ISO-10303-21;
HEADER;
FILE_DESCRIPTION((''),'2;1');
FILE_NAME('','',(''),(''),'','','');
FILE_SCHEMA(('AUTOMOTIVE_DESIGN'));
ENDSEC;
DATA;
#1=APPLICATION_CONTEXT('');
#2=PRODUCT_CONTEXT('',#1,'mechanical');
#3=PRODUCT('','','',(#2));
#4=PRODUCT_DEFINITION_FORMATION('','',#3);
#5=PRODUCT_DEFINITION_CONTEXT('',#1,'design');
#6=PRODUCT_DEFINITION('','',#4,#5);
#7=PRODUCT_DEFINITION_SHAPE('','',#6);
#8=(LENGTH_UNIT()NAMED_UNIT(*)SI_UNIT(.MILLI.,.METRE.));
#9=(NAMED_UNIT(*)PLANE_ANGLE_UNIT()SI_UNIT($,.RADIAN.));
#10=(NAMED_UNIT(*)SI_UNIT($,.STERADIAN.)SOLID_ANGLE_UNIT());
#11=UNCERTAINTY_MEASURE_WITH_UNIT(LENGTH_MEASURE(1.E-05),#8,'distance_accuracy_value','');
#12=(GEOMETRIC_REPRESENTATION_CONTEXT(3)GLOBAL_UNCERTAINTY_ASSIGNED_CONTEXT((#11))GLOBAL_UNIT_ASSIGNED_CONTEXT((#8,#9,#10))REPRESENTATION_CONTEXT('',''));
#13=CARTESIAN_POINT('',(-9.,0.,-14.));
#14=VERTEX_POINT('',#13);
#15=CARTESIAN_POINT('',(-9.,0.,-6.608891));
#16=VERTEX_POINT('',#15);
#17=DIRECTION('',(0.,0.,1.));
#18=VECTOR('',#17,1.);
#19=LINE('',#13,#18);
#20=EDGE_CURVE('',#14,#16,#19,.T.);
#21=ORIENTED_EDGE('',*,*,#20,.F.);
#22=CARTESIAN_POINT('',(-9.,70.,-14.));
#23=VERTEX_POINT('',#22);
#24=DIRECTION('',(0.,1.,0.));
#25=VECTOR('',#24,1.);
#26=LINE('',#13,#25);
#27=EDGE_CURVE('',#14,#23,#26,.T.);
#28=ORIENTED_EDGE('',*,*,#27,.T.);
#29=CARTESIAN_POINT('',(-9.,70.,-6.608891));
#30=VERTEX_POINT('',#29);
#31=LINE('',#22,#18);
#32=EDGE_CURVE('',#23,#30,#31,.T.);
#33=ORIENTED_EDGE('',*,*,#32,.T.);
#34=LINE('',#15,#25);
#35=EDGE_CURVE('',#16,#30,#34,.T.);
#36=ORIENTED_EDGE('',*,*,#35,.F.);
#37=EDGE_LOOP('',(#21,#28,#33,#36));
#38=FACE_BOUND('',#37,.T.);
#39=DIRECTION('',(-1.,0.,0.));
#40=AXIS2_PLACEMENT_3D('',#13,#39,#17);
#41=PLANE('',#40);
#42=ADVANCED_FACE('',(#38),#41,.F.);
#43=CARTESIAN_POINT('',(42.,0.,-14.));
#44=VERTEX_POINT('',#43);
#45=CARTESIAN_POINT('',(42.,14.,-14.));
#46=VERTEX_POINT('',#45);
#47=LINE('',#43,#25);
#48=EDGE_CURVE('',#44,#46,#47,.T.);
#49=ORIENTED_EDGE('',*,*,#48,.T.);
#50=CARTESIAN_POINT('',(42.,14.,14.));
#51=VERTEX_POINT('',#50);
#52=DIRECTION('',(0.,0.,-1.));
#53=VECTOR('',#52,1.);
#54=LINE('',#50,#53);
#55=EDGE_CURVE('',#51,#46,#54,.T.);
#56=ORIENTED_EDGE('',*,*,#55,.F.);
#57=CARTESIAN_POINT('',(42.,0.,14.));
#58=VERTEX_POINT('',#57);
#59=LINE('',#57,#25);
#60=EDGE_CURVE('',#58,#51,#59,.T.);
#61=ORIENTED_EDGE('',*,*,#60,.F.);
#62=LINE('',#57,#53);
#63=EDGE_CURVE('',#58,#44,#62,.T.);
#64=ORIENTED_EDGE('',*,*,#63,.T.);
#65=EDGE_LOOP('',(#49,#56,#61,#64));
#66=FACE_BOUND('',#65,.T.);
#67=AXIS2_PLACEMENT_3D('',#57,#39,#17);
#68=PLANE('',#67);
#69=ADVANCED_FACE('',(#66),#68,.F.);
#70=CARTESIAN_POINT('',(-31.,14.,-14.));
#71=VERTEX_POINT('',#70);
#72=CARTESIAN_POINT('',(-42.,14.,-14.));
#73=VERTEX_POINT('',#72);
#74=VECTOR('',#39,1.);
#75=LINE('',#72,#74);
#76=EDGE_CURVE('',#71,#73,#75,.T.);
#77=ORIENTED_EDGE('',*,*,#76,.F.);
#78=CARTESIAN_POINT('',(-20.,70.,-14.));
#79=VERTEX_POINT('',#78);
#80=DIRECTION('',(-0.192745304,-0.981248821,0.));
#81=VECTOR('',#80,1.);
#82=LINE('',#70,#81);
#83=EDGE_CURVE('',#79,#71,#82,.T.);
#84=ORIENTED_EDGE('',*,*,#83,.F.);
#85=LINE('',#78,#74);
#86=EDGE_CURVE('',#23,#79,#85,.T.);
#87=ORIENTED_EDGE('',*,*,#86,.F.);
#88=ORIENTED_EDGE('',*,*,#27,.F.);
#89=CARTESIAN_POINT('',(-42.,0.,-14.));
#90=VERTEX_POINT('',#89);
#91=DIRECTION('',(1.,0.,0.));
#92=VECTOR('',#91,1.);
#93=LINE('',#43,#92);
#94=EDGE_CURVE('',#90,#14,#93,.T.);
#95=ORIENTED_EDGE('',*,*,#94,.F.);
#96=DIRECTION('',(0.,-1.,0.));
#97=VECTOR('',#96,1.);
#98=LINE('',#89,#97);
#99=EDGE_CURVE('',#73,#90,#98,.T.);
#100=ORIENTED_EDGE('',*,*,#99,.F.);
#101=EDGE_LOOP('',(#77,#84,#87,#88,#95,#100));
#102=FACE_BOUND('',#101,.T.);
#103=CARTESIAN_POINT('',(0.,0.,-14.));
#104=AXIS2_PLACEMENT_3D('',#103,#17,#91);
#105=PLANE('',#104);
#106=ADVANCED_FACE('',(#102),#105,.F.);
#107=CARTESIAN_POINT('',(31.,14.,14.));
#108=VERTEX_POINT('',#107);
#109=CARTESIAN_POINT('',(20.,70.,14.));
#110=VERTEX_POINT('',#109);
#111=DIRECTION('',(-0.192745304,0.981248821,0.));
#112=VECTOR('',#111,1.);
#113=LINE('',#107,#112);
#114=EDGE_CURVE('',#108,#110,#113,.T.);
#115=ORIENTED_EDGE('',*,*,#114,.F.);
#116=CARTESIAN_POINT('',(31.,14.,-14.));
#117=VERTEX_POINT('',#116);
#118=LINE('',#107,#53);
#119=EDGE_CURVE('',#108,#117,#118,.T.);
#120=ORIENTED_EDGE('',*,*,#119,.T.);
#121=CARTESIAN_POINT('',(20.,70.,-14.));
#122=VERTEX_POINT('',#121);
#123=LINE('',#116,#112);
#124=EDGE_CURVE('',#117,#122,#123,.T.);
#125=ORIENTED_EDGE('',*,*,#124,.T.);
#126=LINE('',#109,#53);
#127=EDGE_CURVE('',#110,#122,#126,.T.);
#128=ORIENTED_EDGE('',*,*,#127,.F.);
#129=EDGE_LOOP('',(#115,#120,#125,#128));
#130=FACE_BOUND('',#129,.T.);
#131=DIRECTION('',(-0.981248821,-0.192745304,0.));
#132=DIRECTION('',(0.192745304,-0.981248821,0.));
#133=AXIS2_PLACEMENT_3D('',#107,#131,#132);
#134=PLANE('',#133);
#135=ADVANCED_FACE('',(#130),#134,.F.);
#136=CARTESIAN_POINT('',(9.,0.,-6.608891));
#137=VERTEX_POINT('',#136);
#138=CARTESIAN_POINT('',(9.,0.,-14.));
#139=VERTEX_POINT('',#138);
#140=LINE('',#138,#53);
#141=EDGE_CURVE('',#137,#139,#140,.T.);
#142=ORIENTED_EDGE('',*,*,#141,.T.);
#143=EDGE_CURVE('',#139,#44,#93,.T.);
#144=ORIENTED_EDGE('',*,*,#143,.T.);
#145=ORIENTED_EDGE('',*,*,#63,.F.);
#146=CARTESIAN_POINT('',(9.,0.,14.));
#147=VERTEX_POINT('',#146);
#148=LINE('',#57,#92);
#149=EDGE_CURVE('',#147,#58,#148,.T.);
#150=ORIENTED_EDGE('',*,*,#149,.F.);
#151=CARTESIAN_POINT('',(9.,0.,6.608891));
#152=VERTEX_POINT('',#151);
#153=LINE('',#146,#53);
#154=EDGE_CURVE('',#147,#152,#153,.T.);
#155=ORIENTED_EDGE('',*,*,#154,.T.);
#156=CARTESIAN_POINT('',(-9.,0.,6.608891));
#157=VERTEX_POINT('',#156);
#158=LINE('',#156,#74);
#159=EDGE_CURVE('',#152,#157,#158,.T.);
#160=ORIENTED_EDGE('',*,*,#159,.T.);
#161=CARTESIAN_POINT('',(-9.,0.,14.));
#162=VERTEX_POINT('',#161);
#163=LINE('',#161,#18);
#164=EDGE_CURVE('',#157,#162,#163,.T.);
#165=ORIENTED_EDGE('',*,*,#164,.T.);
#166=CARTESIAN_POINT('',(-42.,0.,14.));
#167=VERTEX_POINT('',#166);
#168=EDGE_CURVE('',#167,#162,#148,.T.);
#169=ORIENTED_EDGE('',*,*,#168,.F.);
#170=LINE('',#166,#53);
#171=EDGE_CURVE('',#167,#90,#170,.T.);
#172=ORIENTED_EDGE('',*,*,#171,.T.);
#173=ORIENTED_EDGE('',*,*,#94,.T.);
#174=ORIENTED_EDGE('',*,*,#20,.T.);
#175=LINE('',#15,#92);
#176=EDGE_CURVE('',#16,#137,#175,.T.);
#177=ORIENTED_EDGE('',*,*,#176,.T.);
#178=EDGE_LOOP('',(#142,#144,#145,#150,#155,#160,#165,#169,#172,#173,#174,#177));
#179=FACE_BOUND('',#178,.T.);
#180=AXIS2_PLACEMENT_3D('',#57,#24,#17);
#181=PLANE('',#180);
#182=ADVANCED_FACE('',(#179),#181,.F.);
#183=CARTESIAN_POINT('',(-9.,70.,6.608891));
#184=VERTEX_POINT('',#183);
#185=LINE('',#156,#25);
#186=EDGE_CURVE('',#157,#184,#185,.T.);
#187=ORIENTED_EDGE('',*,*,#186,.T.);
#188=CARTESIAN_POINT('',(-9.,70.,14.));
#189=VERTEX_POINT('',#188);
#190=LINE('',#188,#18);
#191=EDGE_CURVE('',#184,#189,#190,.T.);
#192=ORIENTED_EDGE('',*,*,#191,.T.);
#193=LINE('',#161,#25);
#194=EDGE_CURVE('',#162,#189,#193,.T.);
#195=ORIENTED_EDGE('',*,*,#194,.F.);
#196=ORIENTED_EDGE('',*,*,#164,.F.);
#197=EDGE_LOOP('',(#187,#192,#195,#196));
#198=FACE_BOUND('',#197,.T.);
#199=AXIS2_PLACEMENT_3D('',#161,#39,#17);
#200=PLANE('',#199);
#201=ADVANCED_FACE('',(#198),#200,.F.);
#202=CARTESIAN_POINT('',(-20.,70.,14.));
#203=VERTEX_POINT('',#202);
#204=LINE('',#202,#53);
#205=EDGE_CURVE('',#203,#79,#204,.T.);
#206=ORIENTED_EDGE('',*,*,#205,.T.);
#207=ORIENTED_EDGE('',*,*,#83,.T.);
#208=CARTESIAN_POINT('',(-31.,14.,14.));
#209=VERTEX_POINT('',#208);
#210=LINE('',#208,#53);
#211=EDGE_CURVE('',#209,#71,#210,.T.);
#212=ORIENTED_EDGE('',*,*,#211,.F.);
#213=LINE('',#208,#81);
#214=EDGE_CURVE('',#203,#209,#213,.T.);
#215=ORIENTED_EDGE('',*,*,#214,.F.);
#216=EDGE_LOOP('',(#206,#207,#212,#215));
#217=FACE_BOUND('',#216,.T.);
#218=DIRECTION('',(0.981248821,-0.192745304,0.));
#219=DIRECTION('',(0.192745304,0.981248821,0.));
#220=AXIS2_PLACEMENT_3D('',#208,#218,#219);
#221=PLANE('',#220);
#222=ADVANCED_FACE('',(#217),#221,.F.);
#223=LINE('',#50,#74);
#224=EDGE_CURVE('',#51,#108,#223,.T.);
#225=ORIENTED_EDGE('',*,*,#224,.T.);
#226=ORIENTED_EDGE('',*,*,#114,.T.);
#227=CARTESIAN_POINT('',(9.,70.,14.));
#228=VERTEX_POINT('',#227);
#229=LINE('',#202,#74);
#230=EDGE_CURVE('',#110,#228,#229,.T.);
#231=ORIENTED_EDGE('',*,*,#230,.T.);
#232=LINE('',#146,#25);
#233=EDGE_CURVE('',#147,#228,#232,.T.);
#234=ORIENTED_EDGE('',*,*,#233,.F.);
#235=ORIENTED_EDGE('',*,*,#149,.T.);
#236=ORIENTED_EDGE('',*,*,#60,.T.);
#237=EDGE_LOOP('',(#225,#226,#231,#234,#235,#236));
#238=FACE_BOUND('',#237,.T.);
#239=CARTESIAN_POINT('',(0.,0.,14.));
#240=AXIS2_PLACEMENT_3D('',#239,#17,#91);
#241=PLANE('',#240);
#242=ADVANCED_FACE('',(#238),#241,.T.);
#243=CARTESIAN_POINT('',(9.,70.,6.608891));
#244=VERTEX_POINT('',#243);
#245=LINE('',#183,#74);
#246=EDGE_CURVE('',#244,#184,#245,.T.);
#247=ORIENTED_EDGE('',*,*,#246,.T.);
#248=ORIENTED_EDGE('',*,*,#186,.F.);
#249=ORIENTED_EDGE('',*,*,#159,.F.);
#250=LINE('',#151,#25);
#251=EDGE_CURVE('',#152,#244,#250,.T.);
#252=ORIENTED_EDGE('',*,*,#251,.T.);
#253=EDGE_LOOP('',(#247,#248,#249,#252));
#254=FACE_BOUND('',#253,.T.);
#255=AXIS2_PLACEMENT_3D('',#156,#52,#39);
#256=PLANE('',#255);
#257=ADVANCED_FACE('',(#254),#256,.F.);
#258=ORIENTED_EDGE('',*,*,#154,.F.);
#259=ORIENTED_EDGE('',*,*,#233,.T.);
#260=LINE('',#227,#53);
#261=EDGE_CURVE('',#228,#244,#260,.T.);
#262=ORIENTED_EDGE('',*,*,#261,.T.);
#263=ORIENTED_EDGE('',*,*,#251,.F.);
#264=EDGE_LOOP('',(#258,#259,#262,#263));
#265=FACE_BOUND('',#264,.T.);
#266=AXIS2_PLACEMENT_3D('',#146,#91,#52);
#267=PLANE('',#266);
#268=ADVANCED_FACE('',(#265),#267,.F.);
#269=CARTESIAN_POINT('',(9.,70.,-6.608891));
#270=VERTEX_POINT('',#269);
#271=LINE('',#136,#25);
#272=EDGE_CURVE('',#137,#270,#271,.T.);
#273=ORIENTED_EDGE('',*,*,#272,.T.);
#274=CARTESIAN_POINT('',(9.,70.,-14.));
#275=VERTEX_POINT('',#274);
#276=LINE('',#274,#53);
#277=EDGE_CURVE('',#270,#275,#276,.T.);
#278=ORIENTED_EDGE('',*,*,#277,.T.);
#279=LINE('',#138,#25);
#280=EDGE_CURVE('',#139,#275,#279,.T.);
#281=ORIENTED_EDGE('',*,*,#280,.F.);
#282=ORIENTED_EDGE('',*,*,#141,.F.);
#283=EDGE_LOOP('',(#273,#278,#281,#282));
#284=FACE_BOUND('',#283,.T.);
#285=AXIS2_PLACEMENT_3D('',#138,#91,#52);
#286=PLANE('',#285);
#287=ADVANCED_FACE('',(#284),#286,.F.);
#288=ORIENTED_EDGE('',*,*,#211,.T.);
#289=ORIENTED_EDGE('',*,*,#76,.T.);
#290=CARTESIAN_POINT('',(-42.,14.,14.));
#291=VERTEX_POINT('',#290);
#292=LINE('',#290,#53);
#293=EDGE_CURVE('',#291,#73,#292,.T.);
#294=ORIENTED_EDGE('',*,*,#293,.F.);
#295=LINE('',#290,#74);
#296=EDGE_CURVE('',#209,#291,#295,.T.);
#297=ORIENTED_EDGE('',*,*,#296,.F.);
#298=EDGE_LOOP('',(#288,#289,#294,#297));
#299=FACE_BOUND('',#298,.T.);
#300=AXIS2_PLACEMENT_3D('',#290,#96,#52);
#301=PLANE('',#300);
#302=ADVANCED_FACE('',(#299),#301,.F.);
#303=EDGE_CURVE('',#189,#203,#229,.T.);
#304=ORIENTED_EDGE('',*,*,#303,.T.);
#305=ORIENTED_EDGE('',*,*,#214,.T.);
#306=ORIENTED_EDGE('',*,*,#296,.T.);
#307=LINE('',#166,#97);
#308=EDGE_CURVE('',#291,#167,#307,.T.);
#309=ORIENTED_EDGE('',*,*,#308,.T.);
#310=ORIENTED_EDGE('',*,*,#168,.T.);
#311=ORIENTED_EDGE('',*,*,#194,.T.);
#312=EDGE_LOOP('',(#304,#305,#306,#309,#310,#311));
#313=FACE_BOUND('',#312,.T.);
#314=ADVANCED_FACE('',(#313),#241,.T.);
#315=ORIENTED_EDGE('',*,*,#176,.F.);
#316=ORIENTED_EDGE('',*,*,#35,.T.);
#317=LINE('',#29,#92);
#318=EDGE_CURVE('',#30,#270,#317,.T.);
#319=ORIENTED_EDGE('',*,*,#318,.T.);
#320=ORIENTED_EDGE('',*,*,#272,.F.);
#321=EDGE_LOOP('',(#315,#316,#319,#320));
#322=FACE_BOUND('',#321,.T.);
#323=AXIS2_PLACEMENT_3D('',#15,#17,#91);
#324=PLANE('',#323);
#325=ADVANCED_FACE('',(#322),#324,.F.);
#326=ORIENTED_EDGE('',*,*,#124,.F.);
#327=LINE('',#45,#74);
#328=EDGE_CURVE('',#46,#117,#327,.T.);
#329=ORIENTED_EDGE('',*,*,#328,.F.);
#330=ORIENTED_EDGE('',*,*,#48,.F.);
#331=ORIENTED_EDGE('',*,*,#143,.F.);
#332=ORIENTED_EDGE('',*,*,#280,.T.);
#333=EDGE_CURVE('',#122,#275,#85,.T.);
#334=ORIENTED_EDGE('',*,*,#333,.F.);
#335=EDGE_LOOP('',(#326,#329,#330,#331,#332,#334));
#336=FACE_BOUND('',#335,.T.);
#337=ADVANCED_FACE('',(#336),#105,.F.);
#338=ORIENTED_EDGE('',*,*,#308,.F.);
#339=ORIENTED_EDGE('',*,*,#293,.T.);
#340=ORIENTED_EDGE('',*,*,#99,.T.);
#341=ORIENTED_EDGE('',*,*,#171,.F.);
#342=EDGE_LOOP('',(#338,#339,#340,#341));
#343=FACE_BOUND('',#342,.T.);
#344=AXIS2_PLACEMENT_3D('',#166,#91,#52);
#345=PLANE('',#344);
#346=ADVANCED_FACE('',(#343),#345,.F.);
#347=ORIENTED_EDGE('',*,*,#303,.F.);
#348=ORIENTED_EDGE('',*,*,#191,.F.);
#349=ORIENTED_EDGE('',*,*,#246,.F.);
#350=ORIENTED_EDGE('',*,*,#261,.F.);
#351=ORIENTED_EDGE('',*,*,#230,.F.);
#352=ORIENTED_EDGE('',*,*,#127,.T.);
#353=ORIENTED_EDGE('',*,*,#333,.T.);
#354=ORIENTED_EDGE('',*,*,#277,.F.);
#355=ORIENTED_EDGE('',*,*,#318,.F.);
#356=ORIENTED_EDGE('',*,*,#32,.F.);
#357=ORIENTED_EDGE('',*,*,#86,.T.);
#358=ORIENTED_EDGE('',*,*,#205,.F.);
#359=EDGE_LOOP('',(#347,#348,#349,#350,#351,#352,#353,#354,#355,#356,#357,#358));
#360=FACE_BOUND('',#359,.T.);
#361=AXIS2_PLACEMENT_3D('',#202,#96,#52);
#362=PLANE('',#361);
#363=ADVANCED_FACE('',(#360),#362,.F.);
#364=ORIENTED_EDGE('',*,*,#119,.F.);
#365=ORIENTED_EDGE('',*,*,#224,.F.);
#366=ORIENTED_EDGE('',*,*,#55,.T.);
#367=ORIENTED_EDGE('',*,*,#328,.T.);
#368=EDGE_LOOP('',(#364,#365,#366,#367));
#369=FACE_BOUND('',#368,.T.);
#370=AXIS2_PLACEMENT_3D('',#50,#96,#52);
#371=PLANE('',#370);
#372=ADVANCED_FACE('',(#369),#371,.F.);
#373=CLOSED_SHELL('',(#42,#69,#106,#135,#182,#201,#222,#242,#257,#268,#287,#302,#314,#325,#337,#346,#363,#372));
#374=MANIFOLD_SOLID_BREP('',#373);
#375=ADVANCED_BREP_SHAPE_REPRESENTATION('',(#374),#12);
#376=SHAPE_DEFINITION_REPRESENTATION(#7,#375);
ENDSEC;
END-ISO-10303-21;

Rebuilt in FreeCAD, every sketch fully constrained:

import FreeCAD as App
import Part
import Sketcher

V = App.Vector
Q = App.Units.Quantity

doc = App.newDocument("Part")
body = doc.addObject("PartDesign::Body", "Body")

sketch1 = body.newObject("Sketcher::SketchObject", "Sketch")
sketch1.AttachmentSupport = (doc.getObject("XY_Plane"), [""])
sketch1.MapMode = "FlatFace"
sketch1.addGeometry(Part.LineSegment(V(-42, 0, 0), V(42, 0, 0)), False)
sketch1.addGeometry(Part.LineSegment(V(42, 0, 0), V(42, 14, 0)), False)
sketch1.addGeometry(Part.LineSegment(V(42, 14, 0), V(31, 14, 0)), False)
sketch1.addGeometry(Part.LineSegment(V(31, 14, 0), V(20, 70, 0)), False)
sketch1.addGeometry(Part.LineSegment(V(20, 70, 0), V(-20, 70, 0)), False)
sketch1.addGeometry(Part.LineSegment(V(-20, 70, 0), V(-31, 14, 0)), False)
sketch1.addGeometry(Part.LineSegment(V(-31, 14, 0), V(-42, 14, 0)), False)
sketch1.addGeometry(Part.LineSegment(V(-42, 14, 0), V(-42, 0, 0)), False)
sketch1.addConstraint(Sketcher.Constraint("Coincident", 0, 2, 1, 1))
sketch1.addConstraint(Sketcher.Constraint("Coincident", 1, 2, 2, 1))
sketch1.addConstraint(Sketcher.Constraint("Coincident", 2, 2, 3, 1))
sketch1.addConstraint(Sketcher.Constraint("Coincident", 3, 2, 4, 1))
sketch1.addConstraint(Sketcher.Constraint("Coincident", 4, 2, 5, 1))
sketch1.addConstraint(Sketcher.Constraint("Coincident", 5, 2, 6, 1))
sketch1.addConstraint(Sketcher.Constraint("Coincident", 6, 2, 7, 1))
sketch1.addConstraint(Sketcher.Constraint("Coincident", 7, 2, 0, 1))
sketch1.addConstraint(Sketcher.Constraint("Horizontal", 0))
sketch1.addConstraint(Sketcher.Constraint("Vertical", 1))
sketch1.addConstraint(Sketcher.Constraint("Horizontal", 2))
sketch1.addConstraint(Sketcher.Constraint("Horizontal", 4))
sketch1.addConstraint(Sketcher.Constraint("Horizontal", 6))
sketch1.addConstraint(Sketcher.Constraint("Vertical", 7))
sketch1.addConstraint(Sketcher.Constraint("Symmetric", 0, 2, 7, 2, -1, 1))
sketch1.addConstraint(Sketcher.Constraint("Symmetric", 2, 2, 5, 2, -2))
sketch1.addConstraint(Sketcher.Constraint("Equal", 3, 5))
sketch1.addConstraint(Sketcher.Constraint("DistanceX", 0, 1, 0, 2, Q("84 mm")))
sketch1.addConstraint(Sketcher.Constraint("DistanceX", 2, 2, 2, 1, Q("11 mm")))
sketch1.addConstraint(Sketcher.Constraint("DistanceX", 4, 2, 4, 1, Q("40 mm")))
sketch1.addConstraint(Sketcher.Constraint("DistanceY", 1, 1, 1, 2, Q("14 mm")))
sketch1.addConstraint(Sketcher.Constraint("DistanceY", -1, 1, 3, 2, Q("70 mm")))
pad1 = body.newObject("PartDesign::Pad", "Pad")
pad1.Profile = sketch1
pad1.Length = 28
pad1.Midplane = True

sketch2 = body.newObject("Sketcher::SketchObject", "Sketch001")
sketch2.AttachmentSupport = (doc.getObject("XZ_Plane"), [""])
sketch2.MapMode = "FlatFace"
sketch2.AttachmentOffset = App.Placement(V(0, 0, -70), App.Rotation())
sketch2.addGeometry(Part.LineSegment(V(-9, -14, 0), V(-9, -7, 0)), False)
sketch2.addGeometry(Part.LineSegment(V(-9, -7, 0), V(9, -7, 0)), False)
sketch2.addGeometry(Part.LineSegment(V(9, -7, 0), V(9, -14, 0)), False)
sketch2.addGeometry(Part.LineSegment(V(9, -14, 0), V(-9, -14, 0)), False)
sketch2.addGeometry(Part.LineSegment(V(-9, 7, 0), V(-9, 14, 0)), False)
sketch2.addGeometry(Part.LineSegment(V(-9, 14, 0), V(9, 14, 0)), False)
sketch2.addGeometry(Part.LineSegment(V(9, 14, 0), V(9, 7, 0)), False)
sketch2.addGeometry(Part.LineSegment(V(9, 7, 0), V(-9, 7, 0)), False)
sketch2.addConstraint(Sketcher.Constraint("Coincident", 0, 2, 1, 1))
sketch2.addConstraint(Sketcher.Constraint("Coincident", 1, 2, 2, 1))
sketch2.addConstraint(Sketcher.Constraint("Coincident", 2, 2, 3, 1))
sketch2.addConstraint(Sketcher.Constraint("Coincident", 3, 2, 0, 1))
sketch2.addConstraint(Sketcher.Constraint("Coincident", 4, 2, 5, 1))
sketch2.addConstraint(Sketcher.Constraint("Coincident", 5, 2, 6, 1))
sketch2.addConstraint(Sketcher.Constraint("Coincident", 6, 2, 7, 1))
sketch2.addConstraint(Sketcher.Constraint("Coincident", 7, 2, 4, 1))
sketch2.addConstraint(Sketcher.Constraint("Vertical", 0))
sketch2.addConstraint(Sketcher.Constraint("Horizontal", 1))
sketch2.addConstraint(Sketcher.Constraint("Vertical", 2))
sketch2.addConstraint(Sketcher.Constraint("Horizontal", 3))
sketch2.addConstraint(Sketcher.Constraint("Vertical", 4))
sketch2.addConstraint(Sketcher.Constraint("Horizontal", 5))
sketch2.addConstraint(Sketcher.Constraint("Vertical", 6))
sketch2.addConstraint(Sketcher.Constraint("Horizontal", 7))
sketch2.addConstraint(Sketcher.Constraint("Symmetric", 2, 2, 4, 2, -1, 1))
sketch2.addConstraint(Sketcher.Constraint("Symmetric", 0, 2, 6, 2, -1, 1))
sketch2.addConstraint(Sketcher.Constraint("Vertical", 3, 2, 4, 2))
sketch2.addConstraint(Sketcher.Constraint("DistanceX", 1, 1, 1, 2, Q("18 mm")))
sketch2.addConstraint(Sketcher.Constraint("DistanceY", 2, 2, -1, 1, Q("14 mm")))
sketch2.addConstraint(Sketcher.Constraint("DistanceY", 0, 1, 0, 2, Q("7.391109 mm")))
pocket1 = body.newObject("PartDesign::Pocket", "Pocket")
pocket1.Profile = sketch2
pocket1.Type = "ThroughAll"
pocket1.Reversed = True

doc.recompute()
